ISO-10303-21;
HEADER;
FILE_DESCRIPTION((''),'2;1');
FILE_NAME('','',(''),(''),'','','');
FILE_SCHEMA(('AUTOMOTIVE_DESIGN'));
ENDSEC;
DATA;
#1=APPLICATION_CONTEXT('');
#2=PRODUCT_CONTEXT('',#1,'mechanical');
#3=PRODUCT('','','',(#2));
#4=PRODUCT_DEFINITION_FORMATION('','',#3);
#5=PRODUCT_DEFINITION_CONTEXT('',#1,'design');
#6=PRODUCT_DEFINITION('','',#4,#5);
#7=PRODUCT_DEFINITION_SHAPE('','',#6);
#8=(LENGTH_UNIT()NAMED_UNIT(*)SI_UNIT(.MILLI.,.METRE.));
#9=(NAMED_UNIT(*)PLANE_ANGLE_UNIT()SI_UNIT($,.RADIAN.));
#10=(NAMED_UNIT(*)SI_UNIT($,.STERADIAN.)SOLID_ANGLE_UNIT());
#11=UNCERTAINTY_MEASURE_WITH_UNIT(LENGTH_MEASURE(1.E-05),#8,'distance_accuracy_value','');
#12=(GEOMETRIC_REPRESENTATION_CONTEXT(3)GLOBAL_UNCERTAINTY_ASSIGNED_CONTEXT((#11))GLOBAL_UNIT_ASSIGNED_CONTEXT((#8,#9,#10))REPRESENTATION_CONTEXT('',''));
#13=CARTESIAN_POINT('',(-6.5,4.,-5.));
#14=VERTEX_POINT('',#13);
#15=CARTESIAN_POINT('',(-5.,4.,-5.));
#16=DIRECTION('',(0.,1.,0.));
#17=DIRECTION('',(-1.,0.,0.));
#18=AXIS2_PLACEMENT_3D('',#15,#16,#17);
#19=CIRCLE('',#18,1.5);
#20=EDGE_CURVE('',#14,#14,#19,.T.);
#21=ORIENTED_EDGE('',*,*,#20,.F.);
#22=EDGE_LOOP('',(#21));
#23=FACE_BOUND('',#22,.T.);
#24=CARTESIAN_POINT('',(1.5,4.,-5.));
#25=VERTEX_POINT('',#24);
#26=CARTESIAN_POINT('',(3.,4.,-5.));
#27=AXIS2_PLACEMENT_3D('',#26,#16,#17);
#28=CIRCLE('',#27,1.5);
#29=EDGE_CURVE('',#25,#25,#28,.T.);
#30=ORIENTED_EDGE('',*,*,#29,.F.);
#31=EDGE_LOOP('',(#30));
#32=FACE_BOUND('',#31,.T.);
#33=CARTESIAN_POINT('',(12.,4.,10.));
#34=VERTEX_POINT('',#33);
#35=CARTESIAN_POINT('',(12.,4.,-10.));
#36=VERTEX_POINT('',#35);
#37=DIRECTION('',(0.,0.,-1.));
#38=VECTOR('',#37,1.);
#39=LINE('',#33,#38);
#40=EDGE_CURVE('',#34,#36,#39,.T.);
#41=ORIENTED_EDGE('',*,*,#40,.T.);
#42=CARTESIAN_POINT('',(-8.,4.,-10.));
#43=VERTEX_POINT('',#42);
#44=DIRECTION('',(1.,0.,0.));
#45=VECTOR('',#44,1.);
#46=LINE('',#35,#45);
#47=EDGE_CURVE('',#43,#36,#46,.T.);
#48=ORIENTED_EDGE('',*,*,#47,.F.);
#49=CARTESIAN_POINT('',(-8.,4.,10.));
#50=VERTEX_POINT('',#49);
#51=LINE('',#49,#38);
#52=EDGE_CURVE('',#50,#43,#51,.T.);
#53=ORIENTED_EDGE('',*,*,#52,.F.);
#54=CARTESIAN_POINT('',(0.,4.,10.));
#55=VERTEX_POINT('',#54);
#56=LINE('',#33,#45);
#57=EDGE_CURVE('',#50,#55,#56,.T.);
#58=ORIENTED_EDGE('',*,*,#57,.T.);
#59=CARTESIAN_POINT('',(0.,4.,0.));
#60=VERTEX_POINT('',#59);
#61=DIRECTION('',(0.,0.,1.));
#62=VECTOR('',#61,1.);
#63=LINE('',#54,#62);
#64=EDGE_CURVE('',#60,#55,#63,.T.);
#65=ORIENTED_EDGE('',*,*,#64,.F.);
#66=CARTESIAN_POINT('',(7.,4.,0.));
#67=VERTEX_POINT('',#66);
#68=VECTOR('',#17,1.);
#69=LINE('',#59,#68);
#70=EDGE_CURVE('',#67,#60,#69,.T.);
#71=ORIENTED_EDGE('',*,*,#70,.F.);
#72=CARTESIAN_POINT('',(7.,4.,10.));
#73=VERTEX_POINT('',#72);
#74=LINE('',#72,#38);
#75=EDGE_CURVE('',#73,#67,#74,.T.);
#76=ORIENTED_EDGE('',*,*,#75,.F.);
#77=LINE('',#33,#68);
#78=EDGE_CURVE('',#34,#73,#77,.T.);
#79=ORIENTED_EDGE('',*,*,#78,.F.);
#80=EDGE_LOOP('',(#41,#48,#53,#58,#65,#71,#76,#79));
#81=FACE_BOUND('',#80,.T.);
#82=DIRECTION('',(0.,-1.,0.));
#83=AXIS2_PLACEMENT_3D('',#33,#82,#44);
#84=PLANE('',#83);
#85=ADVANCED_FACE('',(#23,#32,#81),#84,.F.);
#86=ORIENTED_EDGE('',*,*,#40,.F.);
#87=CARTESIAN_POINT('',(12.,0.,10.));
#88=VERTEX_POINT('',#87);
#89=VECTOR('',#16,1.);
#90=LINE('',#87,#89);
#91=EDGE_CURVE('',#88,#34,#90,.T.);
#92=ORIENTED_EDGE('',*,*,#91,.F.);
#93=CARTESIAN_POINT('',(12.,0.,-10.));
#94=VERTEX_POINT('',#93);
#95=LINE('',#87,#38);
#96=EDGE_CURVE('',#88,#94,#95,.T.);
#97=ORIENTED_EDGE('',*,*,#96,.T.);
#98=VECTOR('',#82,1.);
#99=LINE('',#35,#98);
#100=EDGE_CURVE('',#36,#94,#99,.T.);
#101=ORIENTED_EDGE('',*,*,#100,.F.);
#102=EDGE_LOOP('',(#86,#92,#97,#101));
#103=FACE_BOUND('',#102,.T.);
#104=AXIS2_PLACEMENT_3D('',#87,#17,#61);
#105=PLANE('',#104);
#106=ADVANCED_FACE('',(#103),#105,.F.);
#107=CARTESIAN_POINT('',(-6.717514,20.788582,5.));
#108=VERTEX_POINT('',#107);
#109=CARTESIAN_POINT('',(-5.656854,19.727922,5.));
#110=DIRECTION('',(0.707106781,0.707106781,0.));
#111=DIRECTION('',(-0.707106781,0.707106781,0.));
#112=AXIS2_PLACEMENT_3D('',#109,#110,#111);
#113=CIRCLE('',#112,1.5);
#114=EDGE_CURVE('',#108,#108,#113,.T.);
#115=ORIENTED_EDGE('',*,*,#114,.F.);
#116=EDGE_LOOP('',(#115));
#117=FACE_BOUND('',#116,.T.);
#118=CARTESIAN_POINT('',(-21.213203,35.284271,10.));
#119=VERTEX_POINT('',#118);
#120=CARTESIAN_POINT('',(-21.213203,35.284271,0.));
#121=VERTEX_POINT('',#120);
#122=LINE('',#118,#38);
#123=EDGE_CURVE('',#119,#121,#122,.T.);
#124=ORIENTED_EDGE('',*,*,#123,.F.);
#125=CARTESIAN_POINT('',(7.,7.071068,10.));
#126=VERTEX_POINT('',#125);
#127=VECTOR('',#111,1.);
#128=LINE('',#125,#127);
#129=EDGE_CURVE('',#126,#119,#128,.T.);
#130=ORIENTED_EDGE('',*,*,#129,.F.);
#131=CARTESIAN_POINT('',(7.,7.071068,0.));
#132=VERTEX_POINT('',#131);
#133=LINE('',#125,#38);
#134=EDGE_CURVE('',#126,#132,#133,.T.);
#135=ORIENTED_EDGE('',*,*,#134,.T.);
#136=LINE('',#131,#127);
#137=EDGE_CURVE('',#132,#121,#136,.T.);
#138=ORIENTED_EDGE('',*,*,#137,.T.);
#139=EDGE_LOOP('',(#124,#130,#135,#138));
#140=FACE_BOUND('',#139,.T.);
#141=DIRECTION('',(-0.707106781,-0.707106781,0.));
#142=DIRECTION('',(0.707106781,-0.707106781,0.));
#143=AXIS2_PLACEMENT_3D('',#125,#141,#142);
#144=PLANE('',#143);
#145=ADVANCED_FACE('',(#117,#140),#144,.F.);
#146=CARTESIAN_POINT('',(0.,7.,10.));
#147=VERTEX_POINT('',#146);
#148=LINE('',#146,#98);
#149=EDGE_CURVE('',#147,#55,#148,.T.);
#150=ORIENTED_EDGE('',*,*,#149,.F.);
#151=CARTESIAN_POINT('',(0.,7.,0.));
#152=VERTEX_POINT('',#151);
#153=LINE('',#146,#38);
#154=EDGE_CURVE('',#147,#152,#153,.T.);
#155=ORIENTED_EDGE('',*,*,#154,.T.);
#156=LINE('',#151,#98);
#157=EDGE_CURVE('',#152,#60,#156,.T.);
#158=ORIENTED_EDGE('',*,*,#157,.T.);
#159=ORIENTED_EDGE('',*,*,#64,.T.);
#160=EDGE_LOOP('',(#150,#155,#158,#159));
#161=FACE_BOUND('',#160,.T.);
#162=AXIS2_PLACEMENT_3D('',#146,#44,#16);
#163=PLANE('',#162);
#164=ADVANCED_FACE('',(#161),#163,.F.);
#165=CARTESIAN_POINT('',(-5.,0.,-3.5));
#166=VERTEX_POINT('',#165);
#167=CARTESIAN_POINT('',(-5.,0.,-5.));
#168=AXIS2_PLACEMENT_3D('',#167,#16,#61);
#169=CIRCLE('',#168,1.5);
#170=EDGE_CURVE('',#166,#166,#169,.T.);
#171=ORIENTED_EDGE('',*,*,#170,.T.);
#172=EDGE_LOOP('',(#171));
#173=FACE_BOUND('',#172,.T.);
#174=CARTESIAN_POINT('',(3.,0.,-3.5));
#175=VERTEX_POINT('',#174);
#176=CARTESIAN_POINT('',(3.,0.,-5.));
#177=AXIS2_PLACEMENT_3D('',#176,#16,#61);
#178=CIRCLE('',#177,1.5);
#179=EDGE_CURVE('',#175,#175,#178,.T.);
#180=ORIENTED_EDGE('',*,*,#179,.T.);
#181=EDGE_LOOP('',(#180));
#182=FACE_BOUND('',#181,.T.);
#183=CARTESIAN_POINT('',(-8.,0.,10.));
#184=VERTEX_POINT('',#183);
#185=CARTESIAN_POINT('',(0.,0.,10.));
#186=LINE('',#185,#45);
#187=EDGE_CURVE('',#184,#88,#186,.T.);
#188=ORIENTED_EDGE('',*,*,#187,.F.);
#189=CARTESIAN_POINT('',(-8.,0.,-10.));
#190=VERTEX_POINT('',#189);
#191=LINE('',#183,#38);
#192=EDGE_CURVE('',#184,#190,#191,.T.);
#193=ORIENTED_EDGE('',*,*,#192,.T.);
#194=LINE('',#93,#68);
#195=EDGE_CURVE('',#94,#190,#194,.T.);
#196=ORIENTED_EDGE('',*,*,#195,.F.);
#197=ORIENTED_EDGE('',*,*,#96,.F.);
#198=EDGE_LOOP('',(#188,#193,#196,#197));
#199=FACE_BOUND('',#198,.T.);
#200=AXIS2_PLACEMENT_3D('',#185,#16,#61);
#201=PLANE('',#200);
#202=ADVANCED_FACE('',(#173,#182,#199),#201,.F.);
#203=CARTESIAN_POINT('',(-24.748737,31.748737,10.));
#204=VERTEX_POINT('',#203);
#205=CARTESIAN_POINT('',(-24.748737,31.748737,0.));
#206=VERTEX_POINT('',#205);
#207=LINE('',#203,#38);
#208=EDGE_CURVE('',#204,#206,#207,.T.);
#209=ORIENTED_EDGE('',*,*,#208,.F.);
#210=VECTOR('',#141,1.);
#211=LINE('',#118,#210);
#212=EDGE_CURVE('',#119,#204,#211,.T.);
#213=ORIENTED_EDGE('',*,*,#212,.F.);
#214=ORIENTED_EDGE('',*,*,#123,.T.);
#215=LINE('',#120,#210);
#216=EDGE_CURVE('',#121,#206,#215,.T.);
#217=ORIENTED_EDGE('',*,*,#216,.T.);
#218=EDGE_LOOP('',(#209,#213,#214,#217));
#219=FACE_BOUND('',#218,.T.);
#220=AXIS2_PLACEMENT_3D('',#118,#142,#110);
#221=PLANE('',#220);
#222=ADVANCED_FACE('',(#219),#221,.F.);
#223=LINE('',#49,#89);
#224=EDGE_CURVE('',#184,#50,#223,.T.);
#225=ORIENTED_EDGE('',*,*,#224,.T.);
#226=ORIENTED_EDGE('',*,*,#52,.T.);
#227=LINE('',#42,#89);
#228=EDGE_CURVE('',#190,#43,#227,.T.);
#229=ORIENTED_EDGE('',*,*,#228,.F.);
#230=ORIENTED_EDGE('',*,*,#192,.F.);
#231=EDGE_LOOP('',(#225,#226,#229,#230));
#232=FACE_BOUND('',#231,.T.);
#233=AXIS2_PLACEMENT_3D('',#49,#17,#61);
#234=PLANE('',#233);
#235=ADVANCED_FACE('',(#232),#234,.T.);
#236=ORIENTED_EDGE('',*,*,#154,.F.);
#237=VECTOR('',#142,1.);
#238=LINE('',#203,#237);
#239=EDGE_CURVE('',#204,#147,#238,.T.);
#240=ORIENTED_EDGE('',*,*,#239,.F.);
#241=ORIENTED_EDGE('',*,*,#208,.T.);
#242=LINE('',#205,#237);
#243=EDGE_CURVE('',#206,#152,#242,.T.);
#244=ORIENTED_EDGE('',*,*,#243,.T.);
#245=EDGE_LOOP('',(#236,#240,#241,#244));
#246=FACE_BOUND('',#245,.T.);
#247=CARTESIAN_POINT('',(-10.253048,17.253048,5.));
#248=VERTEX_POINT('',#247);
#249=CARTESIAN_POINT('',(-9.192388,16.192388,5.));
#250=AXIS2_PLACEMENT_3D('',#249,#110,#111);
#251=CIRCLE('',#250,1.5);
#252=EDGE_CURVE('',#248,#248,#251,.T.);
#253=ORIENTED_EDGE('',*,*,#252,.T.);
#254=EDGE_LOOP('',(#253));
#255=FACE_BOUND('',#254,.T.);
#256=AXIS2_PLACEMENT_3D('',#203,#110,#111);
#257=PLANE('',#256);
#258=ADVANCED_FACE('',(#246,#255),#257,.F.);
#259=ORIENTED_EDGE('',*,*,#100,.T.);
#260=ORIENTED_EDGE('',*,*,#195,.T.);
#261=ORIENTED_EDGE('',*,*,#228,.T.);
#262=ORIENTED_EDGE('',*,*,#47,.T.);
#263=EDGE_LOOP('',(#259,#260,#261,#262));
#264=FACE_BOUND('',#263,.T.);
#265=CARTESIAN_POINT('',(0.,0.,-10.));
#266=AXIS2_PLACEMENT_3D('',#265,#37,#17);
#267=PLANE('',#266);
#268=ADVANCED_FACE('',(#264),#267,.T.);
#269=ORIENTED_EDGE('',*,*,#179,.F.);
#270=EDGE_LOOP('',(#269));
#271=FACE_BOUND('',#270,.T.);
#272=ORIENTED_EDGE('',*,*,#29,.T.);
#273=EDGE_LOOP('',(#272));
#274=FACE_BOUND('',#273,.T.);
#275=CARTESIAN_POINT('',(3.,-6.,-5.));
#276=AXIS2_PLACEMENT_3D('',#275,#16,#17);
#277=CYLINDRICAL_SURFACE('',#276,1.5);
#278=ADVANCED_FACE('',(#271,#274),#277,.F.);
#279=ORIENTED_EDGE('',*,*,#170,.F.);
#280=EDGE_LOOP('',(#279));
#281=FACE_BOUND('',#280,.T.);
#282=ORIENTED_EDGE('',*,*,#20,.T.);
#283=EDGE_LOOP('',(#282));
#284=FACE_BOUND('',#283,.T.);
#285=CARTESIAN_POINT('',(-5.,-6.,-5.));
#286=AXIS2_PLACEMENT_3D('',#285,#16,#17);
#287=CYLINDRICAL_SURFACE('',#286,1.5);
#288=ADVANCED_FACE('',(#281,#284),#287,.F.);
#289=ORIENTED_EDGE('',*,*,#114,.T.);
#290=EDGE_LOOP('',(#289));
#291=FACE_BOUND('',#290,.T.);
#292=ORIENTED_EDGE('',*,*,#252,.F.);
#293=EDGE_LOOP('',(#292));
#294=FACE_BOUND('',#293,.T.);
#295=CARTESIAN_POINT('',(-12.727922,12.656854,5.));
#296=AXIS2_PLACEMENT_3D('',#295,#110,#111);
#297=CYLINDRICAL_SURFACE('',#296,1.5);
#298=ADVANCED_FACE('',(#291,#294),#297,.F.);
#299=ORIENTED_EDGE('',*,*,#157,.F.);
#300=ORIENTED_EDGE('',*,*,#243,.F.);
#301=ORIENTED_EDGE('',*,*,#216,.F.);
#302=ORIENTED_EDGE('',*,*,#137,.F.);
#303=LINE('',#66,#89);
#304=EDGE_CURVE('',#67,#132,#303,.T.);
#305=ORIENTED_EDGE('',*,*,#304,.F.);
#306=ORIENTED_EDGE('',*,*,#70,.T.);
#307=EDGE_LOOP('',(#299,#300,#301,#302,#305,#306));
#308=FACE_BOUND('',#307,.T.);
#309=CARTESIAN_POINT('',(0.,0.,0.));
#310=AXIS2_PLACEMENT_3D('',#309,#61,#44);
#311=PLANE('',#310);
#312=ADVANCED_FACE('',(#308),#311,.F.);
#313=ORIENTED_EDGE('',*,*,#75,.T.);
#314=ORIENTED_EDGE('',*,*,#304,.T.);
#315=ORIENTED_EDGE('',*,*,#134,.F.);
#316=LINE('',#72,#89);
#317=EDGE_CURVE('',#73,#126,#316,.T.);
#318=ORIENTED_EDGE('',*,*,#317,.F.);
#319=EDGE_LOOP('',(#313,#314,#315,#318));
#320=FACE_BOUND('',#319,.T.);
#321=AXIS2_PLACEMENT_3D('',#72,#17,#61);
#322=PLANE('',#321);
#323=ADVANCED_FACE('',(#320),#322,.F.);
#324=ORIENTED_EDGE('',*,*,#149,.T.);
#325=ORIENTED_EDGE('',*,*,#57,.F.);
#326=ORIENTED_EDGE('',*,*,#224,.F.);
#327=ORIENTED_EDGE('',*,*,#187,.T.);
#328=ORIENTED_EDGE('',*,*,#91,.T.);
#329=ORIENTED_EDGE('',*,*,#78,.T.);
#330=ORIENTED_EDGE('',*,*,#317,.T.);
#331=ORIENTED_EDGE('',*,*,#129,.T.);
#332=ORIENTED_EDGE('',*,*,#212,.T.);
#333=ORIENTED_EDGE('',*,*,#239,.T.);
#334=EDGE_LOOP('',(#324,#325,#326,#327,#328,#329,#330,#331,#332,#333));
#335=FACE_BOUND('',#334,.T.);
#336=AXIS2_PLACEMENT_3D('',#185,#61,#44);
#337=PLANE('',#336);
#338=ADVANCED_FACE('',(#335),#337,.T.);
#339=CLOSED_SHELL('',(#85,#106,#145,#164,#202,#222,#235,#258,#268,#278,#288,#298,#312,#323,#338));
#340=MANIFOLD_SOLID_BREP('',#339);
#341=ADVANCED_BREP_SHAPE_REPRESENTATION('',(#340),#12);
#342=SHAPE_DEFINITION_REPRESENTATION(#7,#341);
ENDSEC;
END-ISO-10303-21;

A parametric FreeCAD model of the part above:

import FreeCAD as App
import Part
import Sketcher

V = App.Vector
Q = App.Units.Quantity

doc = App.newDocument("Part")
params = doc.addObject("Spreadsheet::Sheet", "Params")
for row, (alias, value) in enumerate([
    ("sketch1_width", "12 mm"),
    ("sketch1_width2", "5 mm"),
    ("sketch1_height", "4 mm"),
    ("sketch1_height2", "7 mm"),
    ("sketch1_length", "5 mm"),
    ("pad1_length", "10 mm"),
    ("sketch2_width", "20 mm"),
    ("sketch2_height", "4 mm"),
    ("pad2_length", "10 mm"),
    ("pad2_length2", "10 mm"),
    ("sketch3_diameter", "3 mm"),
    ("pocket1_length", "10 mm"),
    ("sketch4_diameter", "3 mm"),
    ("pocket2_length", "10 mm"),
], start=1):
    params.set(f"A{row}", alias)
    params.set(f"B{row}", "=" + value)
    params.setAlias(f"B{row}", alias)

body = doc.addObject("PartDesign::Body", "Body")

sketch1 = doc.addObject("Sketcher::SketchObject", "Sketch")
body.addObject(sketch1)
sketch1.AttachmentSupport = (doc.XY_Plane, [""])
sketch1.MapMode = "FlatFace"
sketch1.addGeometry([
    Part.LineSegment(V(0, 0, 0), V(12, 0, 0)),
    Part.LineSegment(V(12, 0, 0), V(12, 4, 0)),
    Part.LineSegment(V(12, 4, 0), V(7, 4, 0)),
    Part.LineSegment(V(7, 4, 0), V(7, 7.1, 0)),
    Part.LineSegment(V(7, 7.1, 0), V(-21.2, 35.3, 0)),
    Part.LineSegment(V(-21.2, 35.3, 0), V(-24.7, 31.7, 0)),
    Part.LineSegment(V(-24.7, 31.7, 0), V(0, 7, 0)),
    Part.LineSegment(V(0, 7, 0), V(0, 0, 0)),
], False)
sketch1.addConstraint([
    Sketcher.Constraint("Coincident", 0, 2, 1, 1),
    Sketcher.Constraint("Coincident", 1, 2, 2, 1),
    Sketcher.Constraint("Coincident", 2, 2, 3, 1),
    Sketcher.Constraint("Coincident", 3, 2, 4, 1),
    Sketcher.Constraint("Coincident", 4, 2, 5, 1),
    Sketcher.Constraint("Coincident", 5, 2, 6, 1),
    Sketcher.Constraint("Coincident", 6, 2, 7, 1),
    Sketcher.Constraint("Coincident", 7, 2, 0, 1),
    Sketcher.Constraint("Horizontal", 0),
    Sketcher.Constraint("Vertical", 1),
    Sketcher.Constraint("Horizontal", 2),
    Sketcher.Constraint("Vertical", 3),
    Sketcher.Constraint("Vertical", 7),
    Sketcher.Constraint("Coincident", 7, 2, -1, 1),
    Sketcher.Constraint("Perpendicular", 4, 5),
    Sketcher.Constraint("Perpendicular", 5, 6),
    Sketcher.Constraint("DistanceX", 0, 1, 0, 2, Q("12 mm")),
    Sketcher.Constraint("DistanceX", 2, 2, 2, 1, Q("5 mm")),
    Sketcher.Constraint("DistanceY", 1, 1, 1, 2, Q("4 mm")),
    Sketcher.Constraint("DistanceY", 7, 2, 7, 1, Q("7 mm")),
    Sketcher.Constraint("Angle", 4, Q("135 deg")),
    Sketcher.Constraint("Distance", 5, Q("5 mm")),
    Sketcher.Constraint("Distance", 6, Q("35 mm")),
])
sketch1.setExpression("Constraints[16]", "Params.sketch1_width")
sketch1.setExpression("Constraints[17]", "Params.sketch1_width2")
sketch1.setExpression("Constraints[18]", "Params.sketch1_height")
sketch1.setExpression("Constraints[19]", "Params.sketch1_height2")
sketch1.setExpression("Constraints[21]", "Params.sketch1_length")
pad1 = doc.addObject("PartDesign::Pad", "Pad")
body.addObject(pad1)
pad1.Profile = sketch1
pad1.setExpression("Length", "Params.pad1_length")

sketch2 = doc.addObject("Sketcher::SketchObject", "Sketch001")
body.addObject(sketch2)
sketch2.AttachmentSupport = (doc.XY_Plane, [""])
sketch2.MapMode = "FlatFace"
sketch2.addGeometry([
    Part.LineSegment(V(12, 4, 0), V(12, 0, 0)),
    Part.LineSegment(V(12, 0, 0), V(-8, 0, 0)),
    Part.LineSegment(V(-8, 0, 0), V(-8, 4, 0)),
    Part.LineSegment(V(-8, 4, 0), V(12, 4, 0)),
], False)
sketch2.addConstraint([
    Sketcher.Constraint("Coincident", 0, 2, 1, 1),
    Sketcher.Constraint("Coincident", 1, 2, 2, 1),
    Sketcher.Constraint("Coincident", 2, 2, 3, 1),
    Sketcher.Constraint("Coincident", 3, 2, 0, 1),
    Sketcher.Constraint("Vertical", 0),
    Sketcher.Constraint("Horizontal", 1),
    Sketcher.Constraint("Vertical", 2),
    Sketcher.Constraint("Horizontal", 3),
    Sketcher.Constraint("PointOnObject", 0, 2, -1),
    Sketcher.Constraint("DistanceX", 1, 2, 1, 1, Q("20 mm")),
    Sketcher.Constraint("DistanceY", 0, 2, 0, 1, Q("4 mm")),
    Sketcher.Constraint("DistanceX", -1, 1, 0, 2, Q("12 mm")),
])
sketch2.setExpression("Constraints[9]", "Params.sketch2_width")
sketch2.setExpression("Constraints[10]", "Params.sketch2_height")
pad2 = doc.addObject("PartDesign::Pad", "Pad001")
body.addObject(pad2)
pad2.Profile = sketch2
pad2.Type = "TwoLengths"
pad2.setExpression("Length", "Params.pad2_length")
pad2.setExpression("Length2", "Params.pad2_length2")
pad2.Reversed = True

sketch3 = doc.addObject("Sketcher::SketchObject", "Sketch002")
body.addObject(sketch3)
sketch3.Placement = App.Placement(V(7.035534, 7.035534, 0), App.Rotation(V(0, 0, -1), V(-0.707106781, 0.707106781, 0), V(0.707106781, 0.707106781, 0), "ZXY"))
sketch3.addGeometry(Part.Circle(V(-5, 17.9, 0), V(0, 0, 1), 1.5), False)
sketch3.addConstraint([
    Sketcher.Constraint("Diameter", 0, Q("3 mm")),
    Sketcher.Constraint("DistanceX", 0, 3, -1, 1, Q("5 mm")),
    Sketcher.Constraint("DistanceY", -1, 1, 0, 3, Q("17.949747 mm")),
])
sketch3.setExpression("Constraints[0]", "Params.sketch3_diameter")
pocket1 = doc.addObject("PartDesign::Pocket", "Pocket")
body.addObject(pocket1)
pocket1.Profile = sketch3
pocket1.setExpression("Length", "Params.pocket1_length")

sketch4 = doc.addObject("Sketcher::SketchObject", "Sketch003")
body.addObject(sketch4)
sketch4.AttachmentSupport = (doc.XZ_Plane, [""])
sketch4.MapMode = "FlatFace"
sketch4.AttachmentOffset = App.Placement(V(0, 0, -4), App.Rotation())
sketch4.addGeometry([
    Part.Circle(V(-5, -5, 0), V(0, 0, 1), 1.5),
    Part.Circle(V(3, -5, 0), V(0, 0, 1), 1.5),
], False)
sketch4.addConstraint([
    Sketcher.Constraint("Equal", 0, 1),
    Sketcher.Constraint("Horizontal", 0, 3, 1, 3),
    Sketcher.Constraint("Diameter", 0, Q("3 mm")),
    Sketcher.Constraint("DistanceX", 0, 3, -1, 1, Q("5 mm")),
    Sketcher.Constraint("DistanceY", 0, 3, -1, 1, Q("5 mm")),
    Sketcher.Constraint("DistanceX", -1, 1, 1, 3, Q("3 mm")),
])
sketch4.setExpression("Constraints[2]", "Params.sketch4_diameter")
pocket2 = doc.addObject("PartDesign::Pocket", "Pocket001")
body.addObject(pocket2)
pocket2.Profile = sketch4
pocket2.setExpression("Length", "Params.pocket2_length")
pocket2.Reversed = True

doc.recompute()
